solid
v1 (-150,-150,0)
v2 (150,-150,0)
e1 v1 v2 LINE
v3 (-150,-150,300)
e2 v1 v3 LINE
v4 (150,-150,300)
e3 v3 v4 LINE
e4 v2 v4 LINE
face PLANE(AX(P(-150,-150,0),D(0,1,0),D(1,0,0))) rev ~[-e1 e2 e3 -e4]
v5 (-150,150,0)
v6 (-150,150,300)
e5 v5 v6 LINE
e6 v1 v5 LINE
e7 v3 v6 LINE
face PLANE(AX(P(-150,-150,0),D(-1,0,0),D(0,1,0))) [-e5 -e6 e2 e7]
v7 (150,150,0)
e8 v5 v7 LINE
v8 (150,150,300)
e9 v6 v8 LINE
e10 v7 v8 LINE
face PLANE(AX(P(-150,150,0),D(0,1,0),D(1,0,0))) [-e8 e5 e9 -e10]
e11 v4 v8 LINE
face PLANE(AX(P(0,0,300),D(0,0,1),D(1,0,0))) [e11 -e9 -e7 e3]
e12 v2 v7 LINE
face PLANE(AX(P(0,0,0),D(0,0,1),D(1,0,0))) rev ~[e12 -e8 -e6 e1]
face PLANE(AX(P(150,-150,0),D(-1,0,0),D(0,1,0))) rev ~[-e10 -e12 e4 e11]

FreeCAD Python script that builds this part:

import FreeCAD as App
import Part
import Sketcher
Q = App.Units.Quantity


def add_polygon(sketch, points):
    """Adds a closed chain of lines whose ends are joined by coincident constraints."""
    first, n = sketch.GeometryCount, len(points)
    for a, b in zip(points, points[1:] + points[:1]):
        sketch.addGeometry(Part.LineSegment(App.Vector(*a, 0), App.Vector(*b, 0)), False)
    for i in range(n):
        sketch.addConstraint(Sketcher.Constraint("Coincident", first + i, 2, first + (i + 1) % n, 1))

doc = App.newDocument("Part")
body = doc.addObject("PartDesign::Body", "Body")

# Sketch on XY plane
sketch1 = doc.addObject("Sketcher::SketchObject", "Sketch")
body.addObject(sketch1)
sketch1.AttachmentSupport = (doc.XY_Plane, [""])
sketch1.MapMode = "FlatFace"
add_polygon(sketch1, [(-150, 150), (-150, -150), (150, -150), (150, 150)])  # lines 0-3
sketch1.addConstraint(Sketcher.Constraint("Vertical", 0))
sketch1.addConstraint(Sketcher.Constraint("Horizontal", 1))
sketch1.addConstraint(Sketcher.Constraint("Vertical", 2))
sketch1.addConstraint(Sketcher.Constraint("Horizontal", 3))
sketch1.addConstraint(Sketcher.Constraint("Symmetric", 0, 2, 2, 2, -1, 1))
sketch1.addConstraint(Sketcher.Constraint("Equal", 3, 0))
sketch1.addConstraint(Sketcher.Constraint("DistanceX", 1, 1, 1, 2, Q("300 mm")))
pad1 = doc.addObject("PartDesign::Pad", "Pad")
body.addObject(pad1)
pad1.Profile = sketch1
pad1.Length = 300

doc.recompute()
